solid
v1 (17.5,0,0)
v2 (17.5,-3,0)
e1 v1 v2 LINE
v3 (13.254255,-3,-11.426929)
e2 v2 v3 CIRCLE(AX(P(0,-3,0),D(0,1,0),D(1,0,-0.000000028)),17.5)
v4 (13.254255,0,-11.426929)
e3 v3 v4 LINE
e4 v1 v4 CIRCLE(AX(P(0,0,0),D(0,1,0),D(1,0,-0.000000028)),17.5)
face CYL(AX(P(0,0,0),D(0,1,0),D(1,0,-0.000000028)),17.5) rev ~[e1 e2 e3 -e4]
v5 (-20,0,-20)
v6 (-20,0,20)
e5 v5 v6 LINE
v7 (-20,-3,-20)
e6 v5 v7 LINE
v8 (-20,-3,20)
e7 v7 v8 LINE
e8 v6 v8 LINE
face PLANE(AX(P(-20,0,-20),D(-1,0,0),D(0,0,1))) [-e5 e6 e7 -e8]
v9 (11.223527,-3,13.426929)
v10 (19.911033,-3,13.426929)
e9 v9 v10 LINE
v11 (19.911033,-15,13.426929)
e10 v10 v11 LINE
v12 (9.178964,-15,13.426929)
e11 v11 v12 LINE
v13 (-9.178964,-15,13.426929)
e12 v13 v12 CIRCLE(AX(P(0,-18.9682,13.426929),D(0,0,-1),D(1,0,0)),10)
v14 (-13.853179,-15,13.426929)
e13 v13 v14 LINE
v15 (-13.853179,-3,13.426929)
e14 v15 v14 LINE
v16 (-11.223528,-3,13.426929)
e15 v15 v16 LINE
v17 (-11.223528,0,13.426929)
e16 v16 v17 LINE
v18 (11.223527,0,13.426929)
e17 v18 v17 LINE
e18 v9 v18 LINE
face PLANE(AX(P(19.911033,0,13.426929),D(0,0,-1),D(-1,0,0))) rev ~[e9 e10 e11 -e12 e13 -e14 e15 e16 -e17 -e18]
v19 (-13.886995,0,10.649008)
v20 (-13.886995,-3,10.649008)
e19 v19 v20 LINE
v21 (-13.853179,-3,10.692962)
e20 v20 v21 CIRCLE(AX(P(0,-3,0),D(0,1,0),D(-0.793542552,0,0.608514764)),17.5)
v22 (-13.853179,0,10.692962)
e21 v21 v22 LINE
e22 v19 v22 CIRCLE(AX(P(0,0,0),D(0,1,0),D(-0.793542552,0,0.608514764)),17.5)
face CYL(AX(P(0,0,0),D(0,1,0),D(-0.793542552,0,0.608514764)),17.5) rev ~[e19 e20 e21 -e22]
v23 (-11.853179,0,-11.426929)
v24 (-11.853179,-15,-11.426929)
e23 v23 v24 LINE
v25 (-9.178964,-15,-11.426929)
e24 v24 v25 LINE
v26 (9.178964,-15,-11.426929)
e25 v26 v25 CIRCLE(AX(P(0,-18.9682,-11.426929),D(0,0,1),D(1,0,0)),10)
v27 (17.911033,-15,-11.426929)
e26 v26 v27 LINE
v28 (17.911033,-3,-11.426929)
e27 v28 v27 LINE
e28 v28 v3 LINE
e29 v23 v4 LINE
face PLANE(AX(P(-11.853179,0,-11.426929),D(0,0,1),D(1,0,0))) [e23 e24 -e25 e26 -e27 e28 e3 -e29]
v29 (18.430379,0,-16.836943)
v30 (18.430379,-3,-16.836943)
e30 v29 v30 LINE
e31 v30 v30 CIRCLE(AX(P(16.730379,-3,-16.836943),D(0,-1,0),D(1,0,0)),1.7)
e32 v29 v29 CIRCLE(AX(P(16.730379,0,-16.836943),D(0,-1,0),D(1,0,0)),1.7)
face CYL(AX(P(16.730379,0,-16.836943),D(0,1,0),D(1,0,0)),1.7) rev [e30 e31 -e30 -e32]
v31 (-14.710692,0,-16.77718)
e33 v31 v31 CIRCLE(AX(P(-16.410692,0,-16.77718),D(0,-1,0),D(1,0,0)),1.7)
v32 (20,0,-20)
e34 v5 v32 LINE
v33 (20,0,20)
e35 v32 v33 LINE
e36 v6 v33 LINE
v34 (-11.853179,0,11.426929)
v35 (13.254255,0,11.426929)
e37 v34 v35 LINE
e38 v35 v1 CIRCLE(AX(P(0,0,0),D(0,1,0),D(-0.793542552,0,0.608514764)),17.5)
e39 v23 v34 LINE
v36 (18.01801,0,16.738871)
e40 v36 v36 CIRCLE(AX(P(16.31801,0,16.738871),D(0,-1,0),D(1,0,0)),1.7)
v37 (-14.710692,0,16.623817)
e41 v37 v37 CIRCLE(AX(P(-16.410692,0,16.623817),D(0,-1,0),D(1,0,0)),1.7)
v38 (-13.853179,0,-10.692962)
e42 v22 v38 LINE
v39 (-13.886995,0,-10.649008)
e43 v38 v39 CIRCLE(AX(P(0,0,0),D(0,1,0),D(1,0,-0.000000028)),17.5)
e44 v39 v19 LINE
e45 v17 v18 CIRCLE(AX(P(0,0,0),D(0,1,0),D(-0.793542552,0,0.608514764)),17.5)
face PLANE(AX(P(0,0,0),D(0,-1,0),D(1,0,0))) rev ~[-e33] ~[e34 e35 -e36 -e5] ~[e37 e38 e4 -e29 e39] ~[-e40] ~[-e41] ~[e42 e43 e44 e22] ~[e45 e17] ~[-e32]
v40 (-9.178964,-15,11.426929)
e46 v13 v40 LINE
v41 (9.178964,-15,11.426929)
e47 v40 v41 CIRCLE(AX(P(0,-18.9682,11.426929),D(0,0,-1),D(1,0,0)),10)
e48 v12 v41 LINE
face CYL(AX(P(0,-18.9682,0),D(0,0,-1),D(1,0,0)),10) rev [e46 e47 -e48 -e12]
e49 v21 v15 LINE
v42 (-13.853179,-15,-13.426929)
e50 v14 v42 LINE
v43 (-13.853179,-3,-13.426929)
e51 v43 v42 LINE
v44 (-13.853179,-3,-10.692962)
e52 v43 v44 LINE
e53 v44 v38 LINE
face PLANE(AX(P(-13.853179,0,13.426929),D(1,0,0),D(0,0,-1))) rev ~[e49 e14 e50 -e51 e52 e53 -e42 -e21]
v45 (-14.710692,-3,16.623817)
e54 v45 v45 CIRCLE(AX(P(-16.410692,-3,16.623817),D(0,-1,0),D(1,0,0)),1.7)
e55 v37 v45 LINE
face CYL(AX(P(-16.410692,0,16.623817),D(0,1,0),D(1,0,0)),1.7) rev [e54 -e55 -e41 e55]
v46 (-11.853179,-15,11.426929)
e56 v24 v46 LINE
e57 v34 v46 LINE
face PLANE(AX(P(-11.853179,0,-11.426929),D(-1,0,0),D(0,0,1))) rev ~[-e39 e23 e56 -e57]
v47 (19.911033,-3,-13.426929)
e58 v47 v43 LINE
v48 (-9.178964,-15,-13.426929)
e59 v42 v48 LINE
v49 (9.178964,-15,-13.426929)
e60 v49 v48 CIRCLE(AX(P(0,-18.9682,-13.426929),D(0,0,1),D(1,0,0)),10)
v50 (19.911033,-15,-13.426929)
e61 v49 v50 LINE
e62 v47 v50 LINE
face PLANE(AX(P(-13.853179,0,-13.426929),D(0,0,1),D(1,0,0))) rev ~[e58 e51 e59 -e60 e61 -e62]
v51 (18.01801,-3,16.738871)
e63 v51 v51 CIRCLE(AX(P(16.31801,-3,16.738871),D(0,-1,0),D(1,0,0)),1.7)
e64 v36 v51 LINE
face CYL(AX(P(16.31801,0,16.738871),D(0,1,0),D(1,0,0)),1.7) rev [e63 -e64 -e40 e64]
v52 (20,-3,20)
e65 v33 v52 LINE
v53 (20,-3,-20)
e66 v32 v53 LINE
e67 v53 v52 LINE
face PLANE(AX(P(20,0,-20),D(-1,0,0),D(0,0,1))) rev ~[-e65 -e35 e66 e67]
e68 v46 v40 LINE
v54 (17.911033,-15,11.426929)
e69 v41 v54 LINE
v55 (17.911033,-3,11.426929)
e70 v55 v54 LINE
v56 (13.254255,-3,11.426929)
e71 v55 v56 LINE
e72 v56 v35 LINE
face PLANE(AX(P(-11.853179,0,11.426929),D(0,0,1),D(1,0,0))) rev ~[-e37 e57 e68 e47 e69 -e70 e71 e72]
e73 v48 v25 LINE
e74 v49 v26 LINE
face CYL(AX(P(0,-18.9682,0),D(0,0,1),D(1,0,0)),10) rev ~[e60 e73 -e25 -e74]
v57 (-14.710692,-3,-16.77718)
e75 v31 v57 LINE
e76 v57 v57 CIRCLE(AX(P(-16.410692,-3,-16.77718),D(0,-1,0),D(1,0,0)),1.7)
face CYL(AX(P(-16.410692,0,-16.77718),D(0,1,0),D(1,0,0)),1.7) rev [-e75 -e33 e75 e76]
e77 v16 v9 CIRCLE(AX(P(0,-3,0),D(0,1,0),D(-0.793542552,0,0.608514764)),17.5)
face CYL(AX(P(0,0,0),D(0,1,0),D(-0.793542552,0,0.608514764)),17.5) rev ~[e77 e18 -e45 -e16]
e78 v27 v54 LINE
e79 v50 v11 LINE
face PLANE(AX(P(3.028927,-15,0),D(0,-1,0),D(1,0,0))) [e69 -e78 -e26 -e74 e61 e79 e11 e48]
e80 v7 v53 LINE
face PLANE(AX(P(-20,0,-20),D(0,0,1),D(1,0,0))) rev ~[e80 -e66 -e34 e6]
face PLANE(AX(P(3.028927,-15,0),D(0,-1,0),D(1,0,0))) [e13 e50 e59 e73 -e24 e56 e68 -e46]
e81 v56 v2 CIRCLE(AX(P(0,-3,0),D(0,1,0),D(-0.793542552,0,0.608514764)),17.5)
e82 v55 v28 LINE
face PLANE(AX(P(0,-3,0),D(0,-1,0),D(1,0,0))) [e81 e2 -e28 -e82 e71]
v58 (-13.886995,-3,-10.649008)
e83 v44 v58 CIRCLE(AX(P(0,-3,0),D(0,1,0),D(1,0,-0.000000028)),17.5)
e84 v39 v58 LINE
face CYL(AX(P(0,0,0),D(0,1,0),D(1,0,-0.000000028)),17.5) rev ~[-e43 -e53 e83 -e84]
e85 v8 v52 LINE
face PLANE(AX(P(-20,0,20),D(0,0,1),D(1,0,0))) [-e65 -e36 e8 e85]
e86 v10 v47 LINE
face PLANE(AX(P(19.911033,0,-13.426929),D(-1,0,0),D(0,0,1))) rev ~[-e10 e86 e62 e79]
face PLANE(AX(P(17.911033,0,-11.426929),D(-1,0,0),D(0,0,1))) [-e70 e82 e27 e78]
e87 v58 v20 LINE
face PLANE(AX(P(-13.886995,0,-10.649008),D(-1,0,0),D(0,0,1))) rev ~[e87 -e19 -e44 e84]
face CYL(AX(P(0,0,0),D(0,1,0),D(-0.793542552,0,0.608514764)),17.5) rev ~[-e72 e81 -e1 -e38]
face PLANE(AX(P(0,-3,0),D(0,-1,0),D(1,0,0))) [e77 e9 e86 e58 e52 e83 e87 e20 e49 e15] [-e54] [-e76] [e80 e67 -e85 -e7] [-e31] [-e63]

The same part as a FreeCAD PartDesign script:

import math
import FreeCAD as App
import Part
import Sketcher

V = App.Vector

doc = App.newDocument("Part")
body = doc.addObject("PartDesign::Body", "Body")

# Sketch on XZ plane
sketch1 = body.newObject("Sketcher::SketchObject", "Sketch")
sketch1.AttachmentSupport = (doc.getObject("XZ_Plane"), [""])
sketch1.MapMode = "FlatFace"
sketch1.addGeometry([
    Part.LineSegment(V(-20, 20, 0), V(-20, -20, 0)),  # 0
    Part.LineSegment(V(-20, -20, 0), V(20, -20, 0)),  # 1
    Part.LineSegment(V(20, -20, 0), V(20, 20, 0)),  # 2
    Part.LineSegment(V(20, 20, 0), V(-20, 20, 0)),  # 3
    Part.Circle(V(-16.4, -16.8, 0), V(0, 0, 1), 1.7),  # 4
    Part.Circle(V(16.7, -16.8, 0), V(0, 0, 1), 1.7),  # 5
    Part.ArcOfCircle(Part.Circle(V(0, 0, 0), V(0, 0, 1), 17.5), math.radians(-143), math.radians(0)),  # 6
    Part.LineSegment(V(-13.9, -10.6, 0), V(-13.9, 10.6, 0)),  # 7
    Part.ArcOfCircle(Part.Circle(V(0, 0, 0), V(0, 0, 1), 17.5), math.radians(0), math.radians(143)),  # 8
    Part.Circle(V(-16.4, 16.6, 0), V(0, 0, 1), 1.7),  # 9
    Part.Circle(V(16.3, 16.7, 0), V(0, 0, 1), 1.7),  # 10
], False)
sketch1.addConstraint([
    Sketcher.Constraint("Coincident", 0, 2, 1, 1),
    Sketcher.Constraint("Coincident", 1, 2, 2, 1),
    Sketcher.Constraint("Coincident", 2, 2, 3, 1),
    Sketcher.Constraint("Coincident", 3, 2, 0, 1),
    Sketcher.Constraint("Coincident", 6, 1, 7, 1),
    Sketcher.Constraint("Coincident", 7, 2, 8, 2),
    Sketcher.Constraint("Tangent", 8, 1, 6, 2),
    Sketcher.Constraint("Vertical", 0),
    Sketcher.Constraint("Horizontal", 1),
    Sketcher.Constraint("Vertical", 2),
    Sketcher.Constraint("Horizontal", 3),
    Sketcher.Constraint("Vertical", 7),
    Sketcher.Constraint("Coincident", 6, 3, -1, 1),
    Sketcher.Constraint("Equal", 4, 5),
    Sketcher.Constraint("Equal", 6, 8),
    Sketcher.Constraint("Equal", 5, 9),
    Sketcher.Constraint("Equal", 9, 10),
    Sketcher.Constraint("Symmetric", 0, 2, 2, 2, -1, 1),
    Sketcher.Constraint("PointOnObject", 8, 1, -1),
    Sketcher.Constraint("Vertical", 4, 3, 9, 3),
    Sketcher.Constraint("Equal", 3, 0),
    Sketcher.Constraint("Diameter", 4, 3.4),
    Sketcher.Constraint("Radius", 6, 17.5),
    Sketcher.Constraint("DistanceX", 1, 1, 1, 2, 40.0),
    Sketcher.Constraint("DistanceX", 9, 3, 10, 3, 32.728702),
    Sketcher.Constraint("DistanceY", 7, 1, 7, 2, 21.298016),
    Sketcher.Constraint("DistanceY", 4, 3, -1, 1, 16.77718),
    Sketcher.Constraint("DistanceX", -1, 1, 5, 3, 16.730379),
    Sketcher.Constraint("DistanceX", -1, 1, 10, 3, 16.31801),
    Sketcher.Constraint("DistanceY", -1, 1, 10, 3, 16.738871),
    Sketcher.Constraint("DistanceY", 5, 3, 9, 3, 33.46076),
    Sketcher.Constraint("DistanceY", 7, 2, 9, 3, 5.974809),
])
pad1 = body.newObject("PartDesign::Pad", "Pad")
pad1.Profile = sketch1
pad1.Length = 3

# Sketch on XZ plane
sketch2 = body.newObject("Sketcher::SketchObject", "Sketch001")
sketch2.AttachmentSupport = (doc.getObject("XZ_Plane"), [""])
sketch2.MapMode = "FlatFace"
sketch2.addGeometry([
    Part.LineSegment(V(20, 13, 0), V(-14, 13, 0)),  # 0
    Part.LineSegment(V(-14, 13, 0), V(-14, -13, 0)),  # 1
    Part.LineSegment(V(-14, -13, 0), V(20, -13, 0)),  # 2
    Part.LineSegment(V(20, -13, 0), V(20, 13, 0)),  # 3
    Part.LineSegment(V(18, -11, 0), V(-12, -11, 0)),  # 4
    Part.LineSegment(V(-12, -11, 0), V(-12, 11, 0)),  # 5
    Part.LineSegment(V(-12, 11, 0), V(18, 11, 0)),  # 6
    Part.LineSegment(V(18, 11, 0), V(18, -11, 0)),  # 7
], False)
sketch2.addConstraint([
    Sketcher.Constraint("Coincident", 0, 2, 1, 1),
    Sketcher.Constraint("Coincident", 1, 2, 2, 1),
    Sketcher.Constraint("Coincident", 2, 2, 3, 1),
    Sketcher.Constraint("Coincident", 3, 2, 0, 1),
    Sketcher.Constraint("Coincident", 4, 2, 5, 1),
    Sketcher.Constraint("Coincident", 5, 2, 6, 1),
    Sketcher.Constraint("Coincident", 6, 2, 7, 1),
    Sketcher.Constraint("Coincident", 7, 2, 4, 1),
    Sketcher.Constraint("Horizontal", 0),
    Sketcher.Constraint("Vertical", 1),
    Sketcher.Constraint("Horizontal", 2),
    Sketcher.Constraint("Vertical", 3),
    Sketcher.Constraint("Horizontal", 4),
    Sketcher.Constraint("Vertical", 5),
    Sketcher.Constraint("Horizontal", 6),
    Sketcher.Constraint("Vertical", 7),
    Sketcher.Constraint("DistanceX", 1, 2, 4, 2, 2.0),
    Sketcher.Constraint("DistanceY", 1, 2, 4, 2, 2.0),
    Sketcher.Constraint("DistanceY", 5, 2, 0, 2, 2.0),
    Sketcher.Constraint("DistanceX", 6, 2, 3, 2, 2.0),
    Sketcher.Constraint("DistanceX", 0, 2, 0, 1, 33.764212),
    Sketcher.Constraint("DistanceY", 1, 2, 1, 1, 26.853858),
    Sketcher.Constraint("DistanceX", 0, 2, -1, 1, 13.853179),
    Sketcher.Constraint("DistanceY", -1, 1, 0, 2, 13.426929),
])
pad2 = body.newObject("PartDesign::Pad", "Pad001")
pad2.Profile = sketch2
pad2.Length = 15

# Sketch on XZ plane
sketch3 = body.newObject("Sketcher::SketchObject", "Sketch002")
sketch3.AttachmentSupport = (doc.getObject("XZ_Plane"), [""])
sketch3.MapMode = "FlatFace"
sketch3.addGeometry([
    Part.LineSegment(V(-12, -13, 0), V(-12, -20, 0)),
    Part.LineSegment(V(-12, -20, 0), V(12, -20, 0)),
    Part.LineSegment(V(12, -20, 0), V(12, -13, 0)),
    Part.LineSegment(V(12, -13, 0), V(-12, -13, 0)),
], False)
sketch3.addConstraint([
    Sketcher.Constraint("Coincident", 0, 2, 1, 1),
    Sketcher.Constraint("Coincident", 1, 2, 2, 1),
    Sketcher.Constraint("Coincident", 2, 2, 3, 1),
    Sketcher.Constraint("Coincident", 3, 2, 0, 1),
    Sketcher.Constraint("Vertical", 0),
    Sketcher.Constraint("Horizontal", 1),
    Sketcher.Constraint("Vertical", 2),
    Sketcher.Constraint("Horizontal", 3),
    Sketcher.Constraint("DistanceX", 1, 1, 1, 2, 24.935725),
    Sketcher.Constraint("DistanceY", 0, 2, 0, 1, 6.393774),
    Sketcher.Constraint("DistanceY", 2, 2, -1, 1, 13.426929),
    Sketcher.Constraint("DistanceX", 0, 2, -1, 1, 12.467863),
])
pad3 = body.newObject("PartDesign::Pad", "Pad002")
pad3.Profile = sketch3
pad3.Length = 3

# Sketch on XY plane
sketch4 = body.newObject("Sketcher::SketchObject", "Sketch003")
sketch4.AttachmentSupport = (doc.getObject("XY_Plane"), [""])
sketch4.MapMode = "FlatFace"
sketch4.addGeometry(Part.Circle(V(0, -19, 0), V(0, 0, 1), 10), False)
sketch4.addConstraint([
    Sketcher.Constraint("PointOnObject", 0, 3, -2),
    Sketcher.Constraint("Diameter", 0, 20.0),
    Sketcher.Constraint("DistanceY", 0, 3, -1, 1, 18.9682),
])
pocket1 = body.newObject("PartDesign::Pocket", "Pocket")
pocket1.Profile = sketch4
pocket1.Type = "ThroughAll"
pocket1.Midplane = True

doc.recompute()
